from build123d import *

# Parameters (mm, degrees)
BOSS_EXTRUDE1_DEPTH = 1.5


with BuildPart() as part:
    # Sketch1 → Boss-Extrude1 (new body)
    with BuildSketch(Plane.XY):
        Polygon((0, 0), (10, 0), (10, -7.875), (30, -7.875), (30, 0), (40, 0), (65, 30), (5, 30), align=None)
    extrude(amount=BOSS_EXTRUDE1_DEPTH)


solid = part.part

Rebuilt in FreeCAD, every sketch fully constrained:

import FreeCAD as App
import Part
import Sketcher
from FreeCAD import Vector

doc = App.newDocument("Part")
params = doc.addObject("Spreadsheet::Sheet", "Params")
for row, (alias, value) in enumerate([
    ("sketch1_width", "10 mm"),
    ("sketch1_width2", "20 mm"),
    ("sketch1_width3", "60 mm"),
    ("pad1_length", "1.5 mm"),
], start=1):
    params.set(f"A{row}", alias)
    params.set(f"B{row}", "=" + value)
    params.setAlias(f"B{row}", alias)

body = doc.addObject("PartDesign::Body", "Body")

sketch1 = body.newObject("Sketcher::SketchObject", "Sketch")
sketch1.AttachmentSupport = (doc.getObject("XY_Plane"), [""])
sketch1.MapMode = "FlatFace"
sketch1.addGeometry(Part.LineSegment(Vector(0, 0, 0), Vector(10, 0, 0)), False)
sketch1.addGeometry(Part.LineSegment(Vector(10, 0, 0), Vector(10, -7.875, 0)), False)
sketch1.addGeometry(Part.LineSegment(Vector(10, -7.875, 0), Vector(30, -7.875, 0)), False)
sketch1.addGeometry(Part.LineSegment(Vector(30, -7.875, 0), Vector(30, 0, 0)), False)
sketch1.addGeometry(Part.LineSegment(Vector(30, 0, 0), Vector(40, 0, 0)), False)
sketch1.addGeometry(Part.LineSegment(Vector(40, 0, 0), Vector(65, 30, 0)), False)
sketch1.addGeometry(Part.LineSegment(Vector(65, 30, 0), Vector(5, 30, 0)), False)
sketch1.addGeometry(Part.LineSegment(Vector(5, 30, 0), Vector(0, 0, 0)), False)
sketch1.addConstraint(Sketcher.Constraint("Coincident", 0, 2, 1, 1))
sketch1.addConstraint(Sketcher.Constraint("Coincident", 1, 2, 2, 1))
sketch1.addConstraint(Sketcher.Constraint("Coincident", 2, 2, 3, 1))
sketch1.addConstraint(Sketcher.Constraint("Coincident", 3, 2, 4, 1))
sketch1.addConstraint(Sketcher.Constraint("Coincident", 4, 2, 5, 1))
sketch1.addConstraint(Sketcher.Constraint("Coincident", 5, 2, 6, 1))
sketch1.addConstraint(Sketcher.Constraint("Coincident", 6, 2, 7, 1))
sketch1.addConstraint(Sketcher.Constraint("Coincident", 7, 2, 0, 1))
sketch1.addConstraint(Sketcher.Constraint("Horizontal", 0))
sketch1.addConstraint(Sketcher.Constraint("Vertical", 1))
sketch1.addConstraint(Sketcher.Constraint("Horizontal", 2))
sketch1.addConstraint(Sketcher.Constraint("Vertical", 3))
sketch1.addConstraint(Sketcher.Constraint("Horizontal", 4))
sketch1.addConstraint(Sketcher.Constraint("Horizontal", 6))
sketch1.addConstraint(Sketcher.Constraint("Coincident", 7, 2, -1, 1))
sketch1.addConstraint(Sketcher.Constraint("PointOnObject", 3, 2, -1))
sketch1.addConstraint(Sketcher.Constraint("Equal", 0, 4))
sketch1.addConstraint(Sketcher.Constraint("DistanceX", 0, 1, 0, 2, 10.0))
sketch1.addConstraint(Sketcher.Constraint("DistanceX", 2, 1, 2, 2, 20.0))
sketch1.addConstraint(Sketcher.Constraint("DistanceX", 6, 2, 6, 1, 60.0))
sketch1.addConstraint(Sketcher.Constraint("DistanceX", -1, 1, 5, 2, 65.0))
sketch1.addConstraint(Sketcher.Constraint("DistanceY", -1, 1, 5, 2, 30.0))
sketch1.addConstraint(Sketcher.Constraint("DistanceY", 1, 2, 1, 1, 7.875))
sketch1.setExpression("Constraints[17]", "Params.sketch1_width")
sketch1.setExpression("Constraints[18]", "Params.sketch1_width2")
sketch1.setExpression("Constraints[19]", "Params.sketch1_width3")
pad1 = body.newObject("PartDesign::Pad", "Pad")
pad1.Profile = sketch1
pad1.setExpression("Length", "Params.pad1_length")

doc.recompute()
